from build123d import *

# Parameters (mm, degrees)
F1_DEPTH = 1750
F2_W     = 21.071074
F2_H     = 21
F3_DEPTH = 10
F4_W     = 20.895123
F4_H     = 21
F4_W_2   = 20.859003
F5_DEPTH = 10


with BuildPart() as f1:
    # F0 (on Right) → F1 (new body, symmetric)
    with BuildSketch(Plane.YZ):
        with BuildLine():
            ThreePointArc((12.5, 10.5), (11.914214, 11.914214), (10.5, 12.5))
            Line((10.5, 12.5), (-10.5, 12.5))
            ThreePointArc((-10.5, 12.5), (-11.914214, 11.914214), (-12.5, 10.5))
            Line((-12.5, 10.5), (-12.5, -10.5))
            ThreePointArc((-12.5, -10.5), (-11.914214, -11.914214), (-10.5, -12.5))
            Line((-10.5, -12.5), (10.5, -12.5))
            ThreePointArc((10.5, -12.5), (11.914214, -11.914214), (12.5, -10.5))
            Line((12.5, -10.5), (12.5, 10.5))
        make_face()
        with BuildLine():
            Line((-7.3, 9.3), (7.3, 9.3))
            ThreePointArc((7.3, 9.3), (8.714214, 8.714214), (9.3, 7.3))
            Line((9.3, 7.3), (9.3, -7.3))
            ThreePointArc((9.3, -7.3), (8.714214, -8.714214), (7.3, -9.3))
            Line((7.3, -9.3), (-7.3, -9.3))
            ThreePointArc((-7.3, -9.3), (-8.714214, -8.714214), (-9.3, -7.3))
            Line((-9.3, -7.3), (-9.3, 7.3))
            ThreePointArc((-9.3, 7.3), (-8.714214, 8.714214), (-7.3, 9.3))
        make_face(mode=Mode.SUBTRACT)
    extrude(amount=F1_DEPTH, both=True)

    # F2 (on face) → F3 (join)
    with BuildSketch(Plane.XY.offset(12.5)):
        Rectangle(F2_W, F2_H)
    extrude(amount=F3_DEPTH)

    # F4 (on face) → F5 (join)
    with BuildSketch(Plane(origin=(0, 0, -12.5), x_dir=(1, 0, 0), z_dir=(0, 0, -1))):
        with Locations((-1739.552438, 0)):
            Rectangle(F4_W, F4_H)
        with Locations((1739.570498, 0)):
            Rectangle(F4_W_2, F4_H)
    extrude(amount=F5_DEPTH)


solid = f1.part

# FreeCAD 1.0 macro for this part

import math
import FreeCAD as App
import Part
import Sketcher
Q = App.Units.Quantity

doc = App.newDocument("Part")
body = doc.addObject("PartDesign::Body", "Body")

sketch1 = doc.addObject("Sketcher::SketchObject", "Sketch")
body.addObject(sketch1)
sketch1.AttachmentSupport = (doc.YZ_Plane, [""])
sketch1.MapMode = "FlatFace"
sketch1.addGeometry([
    Part.ArcOfCircle(Part.Circle(App.Vector(10.5, 10.5, 0), App.Vector(0, 0, 1), 2), math.radians(0), math.radians(90)),
    Part.LineSegment(App.Vector(10.5, 12.5, 0), App.Vector(-10.5, 12.5, 0)),
    Part.ArcOfCircle(Part.Circle(App.Vector(-10.5, 10.5, 0), App.Vector(0, 0, 1), 2), math.radians(90), math.radians(180)),
    Part.LineSegment(App.Vector(-12.5, 10.5, 0), App.Vector(-12.5, -10.5, 0)),
    Part.ArcOfCircle(Part.Circle(App.Vector(-10.5, -10.5, 0), App.Vector(0, 0, 1), 2), math.radians(180), math.radians(270)),
    Part.LineSegment(App.Vector(-10.5, -12.5, 0), App.Vector(10.5, -12.5, 0)),
    Part.ArcOfCircle(Part.Circle(App.Vector(10.5, -10.5, 0), App.Vector(0, 0, 1), 2), math.radians(-90), math.radians(0)),
    Part.LineSegment(App.Vector(12.5, -10.5, 0), App.Vector(12.5, 10.5, 0)),
    Part.ArcOfCircle(Part.Circle(App.Vector(-7.3, 7.3, 0), App.Vector(0, 0, 1), 2), math.radians(90), math.radians(180)),
    Part.LineSegment(App.Vector(-7.3, 9.3, 0), App.Vector(7.3, 9.3, 0)),
    Part.ArcOfCircle(Part.Circle(App.Vector(7.3, 7.3, 0), App.Vector(0, 0, 1), 2), math.radians(0), math.radians(90)),
    Part.LineSegment(App.Vector(9.3, 7.3, 0), App.Vector(9.3, -7.3, 0)),
    Part.ArcOfCircle(Part.Circle(App.Vector(7.3, -7.3, 0), App.Vector(0, 0, 1), 2), math.radians(-90), math.radians(0)),
    Part.LineSegment(App.Vector(7.3, -9.3, 0), App.Vector(-7.3, -9.3, 0)),
    Part.ArcOfCircle(Part.Circle(App.Vector(-7.3, -7.3, 0), App.Vector(0, 0, 1), 2), math.radians(180), math.radians(270)),
    Part.LineSegment(App.Vector(-9.3, -7.3, 0), App.Vector(-9.3, 7.3, 0)),
], False)
sketch1.addConstraint([
    Sketcher.Constraint("Tangent", 0, 2, 1, 1),
    Sketcher.Constraint("Tangent", 1, 2, 2, 1),
    Sketcher.Constraint("Tangent", 2, 2, 3, 1),
    Sketcher.Constraint("Tangent", 3, 2, 4, 1),
    Sketcher.Constraint("Tangent", 4, 2, 5, 1),
    Sketcher.Constraint("Tangent", 5, 2, 6, 1),
    Sketcher.Constraint("Tangent", 6, 2, 7, 1),
    Sketcher.Constraint("Tangent", 7, 2, 0, 1),
    Sketcher.Constraint("Tangent", 8, 1, 9, 1),
    Sketcher.Constraint("Tangent", 9, 2, 10, 2),
    Sketcher.Constraint("Tangent", 10, 1, 11, 1),
    Sketcher.Constraint("Tangent", 11, 2, 12, 2),
    Sketcher.Constraint("Tangent", 12, 1, 13, 1),
    Sketcher.Constraint("Tangent", 13, 2, 14, 2),
    Sketcher.Constraint("Tangent", 14, 1, 15, 1),
    Sketcher.Constraint("Tangent", 15, 2, 8, 2),
    Sketcher.Constraint("Horizontal", 1),
    Sketcher.Constraint("Vertical", 3),
    Sketcher.Constraint("Horizontal", 5),
    Sketcher.Constraint("Vertical", 7),
    Sketcher.Constraint("Horizontal", 9),
    Sketcher.Constraint("Vertical", 11),
    Sketcher.Constraint("Horizontal", 13),
    Sketcher.Constraint("Vertical", 15),
    Sketcher.Constraint("Equal", 0, 2),
    Sketcher.Constraint("Equal", 2, 4),
    Sketcher.Constraint("Equal", 4, 6),
    Sketcher.Constraint("Equal", 6, 8),
    Sketcher.Constraint("Equal", 8, 10),
    Sketcher.Constraint("Equal", 10, 12),
    Sketcher.Constraint("Equal", 12, 14),
    Sketcher.Constraint("Symmetric", 0, 3, 4, 3, -1, 1),
    Sketcher.Constraint("Symmetric", 8, 3, 12, 3, -1, 1),
    Sketcher.Constraint("Equal", 5, 3),
    Sketcher.Constraint("Equal", 13, 11),
    Sketcher.Constraint("Radius", 0, Q("1.999999 mm")),
    Sketcher.Constraint("DistanceX", 1, 2, 1, 1, Q("21 mm")),
    Sketcher.Constraint("DistanceX", 9, 1, 9, 2, Q("14.6 mm")),
])
pad1 = doc.addObject("PartDesign::Pad", "Pad")
body.addObject(pad1)
pad1.Profile = sketch1
pad1.Length = 3500
pad1.Midplane = True

sketch2 = doc.addObject("Sketcher::SketchObject", "Sketch001")
body.addObject(sketch2)
sketch2.AttachmentSupport = (doc.XY_Plane, [""])
sketch2.MapMode = "FlatFace"
sketch2.AttachmentOffset = App.Placement(App.Vector(0, 0, 12.5), App.Rotation())
sketch2.addGeometry([
    Part.LineSegment(App.Vector(-11, 10, 0), App.Vector(-11, -10, 0)),
    Part.LineSegment(App.Vector(-11, -10, 0), App.Vector(11, -10, 0)),
    Part.LineSegment(App.Vector(11, -10, 0), App.Vector(11, 10, 0)),
    Part.LineSegment(App.Vector(11, 10, 0), App.Vector(-11, 10, 0)),
], False)
sketch2.addConstraint([
    Sketcher.Constraint("Coincident", 0, 2, 1, 1),
    Sketcher.Constraint("Coincident", 1, 2, 2, 1),
    Sketcher.Constraint("Coincident", 2, 2, 3, 1),
    Sketcher.Constraint("Coincident", 3, 2, 0, 1),
    Sketcher.Constraint("Vertical", 0),
    Sketcher.Constraint("Horizontal", 1),
    Sketcher.Constraint("Vertical", 2),
    Sketcher.Constraint("Horizontal", 3),
    Sketcher.Constraint("Symmetric", 0, 2, 2, 2, -1, 1),
    Sketcher.Constraint("DistanceY", 0, 2, 0, 1, Q("21 mm")),
    Sketcher.Constraint("DistanceX", 1, 1, 1, 2, Q("21.071074 mm")),
])
pad2 = doc.addObject("PartDesign::Pad", "Pad001")
body.addObject(pad2)
pad2.Profile = sketch2
pad2.Length = 10

sketch3 = doc.addObject("Sketcher::SketchObject", "Sketch002")
body.addObject(sketch3)
sketch3.AttachmentSupport = (doc.XY_Plane, [""])
sketch3.MapMode = "FlatFace"
sketch3.AttachmentOffset = App.Placement(App.Vector(0, 0, -12.5), App.Rotation())
sketch3.addGeometry([
    Part.LineSegment(App.Vector(-1750, -10, 0), App.Vector(-1750, 10, 0)),
    Part.LineSegment(App.Vector(-1750, 10, 0), App.Vector(-1729, 10, 0)),
    Part.LineSegment(App.Vector(-1729, 10, 0), App.Vector(-1729, -10, 0)),
    Part.LineSegment(App.Vector(-1729, -10, 0), App.Vector(-1750, -10, 0)),
    Part.LineSegment(App.Vector(1729, -10, 0), App.Vector(1729, 10, 0)),
    Part.LineSegment(App.Vector(1729, 10, 0), App.Vector(1750, 10, 0)),
    Part.LineSegment(App.Vector(1750, 10, 0), App.Vector(1750, -10, 0)),
    Part.LineSegment(App.Vector(1750, -10, 0), App.Vector(1729, -10, 0)),
], False)
sketch3.addConstraint([
    Sketcher.Constraint("Coincident", 0, 2, 1, 1),
    Sketcher.Constraint("Coincident", 1, 2, 2, 1),
    Sketcher.Constraint("Coincident", 2, 2, 3, 1),
    Sketcher.Constraint("Coincident", 3, 2, 0, 1),
    Sketcher.Constraint("Coincident", 4, 2, 5, 1),
    Sketcher.Constraint("Coincident", 5, 2, 6, 1),
    Sketcher.Constraint("Coincident", 6, 2, 7, 1),
    Sketcher.Constraint("Coincident", 7, 2, 4, 1),
    Sketcher.Constraint("Vertical", 0),
    Sketcher.Constraint("Horizontal", 1),
    Sketcher.Constraint("Vertical", 2),
    Sketcher.Constraint("Horizontal", 3),
    Sketcher.Constraint("Vertical", 4),
    Sketcher.Constraint("Horizontal", 5),
    Sketcher.Constraint("Vertical", 6),
    Sketcher.Constraint("Horizontal", 7),
    Sketcher.Constraint("Symmetric", 3, 2, 5, 2, -1, 1),
    Sketcher.Constraint("Horizontal", 1, 2, 4, 2),
    Sketcher.Constraint("Horizontal", 3, 2, 6, 2),
    Sketcher.Constraint("DistanceY", 0, 1, 0, 2, Q("21 mm")),
    Sketcher.Constraint("DistanceX", 0, 2, -1, 1, Q("1750 mm")),
    Sketcher.Constraint("DistanceX", 1, 1, 1, 2, Q("20.895123 mm")),
    Sketcher.Constraint("DistanceX", 5, 1, 5, 2, Q("20.859003 mm")),
])
pad3 = doc.addObject("PartDesign::Pad", "Pad002")
body.addObject(pad3)
pad3.Profile = sketch3
pad3.Length = 10
pad3.Reversed = True

doc.recompute()
